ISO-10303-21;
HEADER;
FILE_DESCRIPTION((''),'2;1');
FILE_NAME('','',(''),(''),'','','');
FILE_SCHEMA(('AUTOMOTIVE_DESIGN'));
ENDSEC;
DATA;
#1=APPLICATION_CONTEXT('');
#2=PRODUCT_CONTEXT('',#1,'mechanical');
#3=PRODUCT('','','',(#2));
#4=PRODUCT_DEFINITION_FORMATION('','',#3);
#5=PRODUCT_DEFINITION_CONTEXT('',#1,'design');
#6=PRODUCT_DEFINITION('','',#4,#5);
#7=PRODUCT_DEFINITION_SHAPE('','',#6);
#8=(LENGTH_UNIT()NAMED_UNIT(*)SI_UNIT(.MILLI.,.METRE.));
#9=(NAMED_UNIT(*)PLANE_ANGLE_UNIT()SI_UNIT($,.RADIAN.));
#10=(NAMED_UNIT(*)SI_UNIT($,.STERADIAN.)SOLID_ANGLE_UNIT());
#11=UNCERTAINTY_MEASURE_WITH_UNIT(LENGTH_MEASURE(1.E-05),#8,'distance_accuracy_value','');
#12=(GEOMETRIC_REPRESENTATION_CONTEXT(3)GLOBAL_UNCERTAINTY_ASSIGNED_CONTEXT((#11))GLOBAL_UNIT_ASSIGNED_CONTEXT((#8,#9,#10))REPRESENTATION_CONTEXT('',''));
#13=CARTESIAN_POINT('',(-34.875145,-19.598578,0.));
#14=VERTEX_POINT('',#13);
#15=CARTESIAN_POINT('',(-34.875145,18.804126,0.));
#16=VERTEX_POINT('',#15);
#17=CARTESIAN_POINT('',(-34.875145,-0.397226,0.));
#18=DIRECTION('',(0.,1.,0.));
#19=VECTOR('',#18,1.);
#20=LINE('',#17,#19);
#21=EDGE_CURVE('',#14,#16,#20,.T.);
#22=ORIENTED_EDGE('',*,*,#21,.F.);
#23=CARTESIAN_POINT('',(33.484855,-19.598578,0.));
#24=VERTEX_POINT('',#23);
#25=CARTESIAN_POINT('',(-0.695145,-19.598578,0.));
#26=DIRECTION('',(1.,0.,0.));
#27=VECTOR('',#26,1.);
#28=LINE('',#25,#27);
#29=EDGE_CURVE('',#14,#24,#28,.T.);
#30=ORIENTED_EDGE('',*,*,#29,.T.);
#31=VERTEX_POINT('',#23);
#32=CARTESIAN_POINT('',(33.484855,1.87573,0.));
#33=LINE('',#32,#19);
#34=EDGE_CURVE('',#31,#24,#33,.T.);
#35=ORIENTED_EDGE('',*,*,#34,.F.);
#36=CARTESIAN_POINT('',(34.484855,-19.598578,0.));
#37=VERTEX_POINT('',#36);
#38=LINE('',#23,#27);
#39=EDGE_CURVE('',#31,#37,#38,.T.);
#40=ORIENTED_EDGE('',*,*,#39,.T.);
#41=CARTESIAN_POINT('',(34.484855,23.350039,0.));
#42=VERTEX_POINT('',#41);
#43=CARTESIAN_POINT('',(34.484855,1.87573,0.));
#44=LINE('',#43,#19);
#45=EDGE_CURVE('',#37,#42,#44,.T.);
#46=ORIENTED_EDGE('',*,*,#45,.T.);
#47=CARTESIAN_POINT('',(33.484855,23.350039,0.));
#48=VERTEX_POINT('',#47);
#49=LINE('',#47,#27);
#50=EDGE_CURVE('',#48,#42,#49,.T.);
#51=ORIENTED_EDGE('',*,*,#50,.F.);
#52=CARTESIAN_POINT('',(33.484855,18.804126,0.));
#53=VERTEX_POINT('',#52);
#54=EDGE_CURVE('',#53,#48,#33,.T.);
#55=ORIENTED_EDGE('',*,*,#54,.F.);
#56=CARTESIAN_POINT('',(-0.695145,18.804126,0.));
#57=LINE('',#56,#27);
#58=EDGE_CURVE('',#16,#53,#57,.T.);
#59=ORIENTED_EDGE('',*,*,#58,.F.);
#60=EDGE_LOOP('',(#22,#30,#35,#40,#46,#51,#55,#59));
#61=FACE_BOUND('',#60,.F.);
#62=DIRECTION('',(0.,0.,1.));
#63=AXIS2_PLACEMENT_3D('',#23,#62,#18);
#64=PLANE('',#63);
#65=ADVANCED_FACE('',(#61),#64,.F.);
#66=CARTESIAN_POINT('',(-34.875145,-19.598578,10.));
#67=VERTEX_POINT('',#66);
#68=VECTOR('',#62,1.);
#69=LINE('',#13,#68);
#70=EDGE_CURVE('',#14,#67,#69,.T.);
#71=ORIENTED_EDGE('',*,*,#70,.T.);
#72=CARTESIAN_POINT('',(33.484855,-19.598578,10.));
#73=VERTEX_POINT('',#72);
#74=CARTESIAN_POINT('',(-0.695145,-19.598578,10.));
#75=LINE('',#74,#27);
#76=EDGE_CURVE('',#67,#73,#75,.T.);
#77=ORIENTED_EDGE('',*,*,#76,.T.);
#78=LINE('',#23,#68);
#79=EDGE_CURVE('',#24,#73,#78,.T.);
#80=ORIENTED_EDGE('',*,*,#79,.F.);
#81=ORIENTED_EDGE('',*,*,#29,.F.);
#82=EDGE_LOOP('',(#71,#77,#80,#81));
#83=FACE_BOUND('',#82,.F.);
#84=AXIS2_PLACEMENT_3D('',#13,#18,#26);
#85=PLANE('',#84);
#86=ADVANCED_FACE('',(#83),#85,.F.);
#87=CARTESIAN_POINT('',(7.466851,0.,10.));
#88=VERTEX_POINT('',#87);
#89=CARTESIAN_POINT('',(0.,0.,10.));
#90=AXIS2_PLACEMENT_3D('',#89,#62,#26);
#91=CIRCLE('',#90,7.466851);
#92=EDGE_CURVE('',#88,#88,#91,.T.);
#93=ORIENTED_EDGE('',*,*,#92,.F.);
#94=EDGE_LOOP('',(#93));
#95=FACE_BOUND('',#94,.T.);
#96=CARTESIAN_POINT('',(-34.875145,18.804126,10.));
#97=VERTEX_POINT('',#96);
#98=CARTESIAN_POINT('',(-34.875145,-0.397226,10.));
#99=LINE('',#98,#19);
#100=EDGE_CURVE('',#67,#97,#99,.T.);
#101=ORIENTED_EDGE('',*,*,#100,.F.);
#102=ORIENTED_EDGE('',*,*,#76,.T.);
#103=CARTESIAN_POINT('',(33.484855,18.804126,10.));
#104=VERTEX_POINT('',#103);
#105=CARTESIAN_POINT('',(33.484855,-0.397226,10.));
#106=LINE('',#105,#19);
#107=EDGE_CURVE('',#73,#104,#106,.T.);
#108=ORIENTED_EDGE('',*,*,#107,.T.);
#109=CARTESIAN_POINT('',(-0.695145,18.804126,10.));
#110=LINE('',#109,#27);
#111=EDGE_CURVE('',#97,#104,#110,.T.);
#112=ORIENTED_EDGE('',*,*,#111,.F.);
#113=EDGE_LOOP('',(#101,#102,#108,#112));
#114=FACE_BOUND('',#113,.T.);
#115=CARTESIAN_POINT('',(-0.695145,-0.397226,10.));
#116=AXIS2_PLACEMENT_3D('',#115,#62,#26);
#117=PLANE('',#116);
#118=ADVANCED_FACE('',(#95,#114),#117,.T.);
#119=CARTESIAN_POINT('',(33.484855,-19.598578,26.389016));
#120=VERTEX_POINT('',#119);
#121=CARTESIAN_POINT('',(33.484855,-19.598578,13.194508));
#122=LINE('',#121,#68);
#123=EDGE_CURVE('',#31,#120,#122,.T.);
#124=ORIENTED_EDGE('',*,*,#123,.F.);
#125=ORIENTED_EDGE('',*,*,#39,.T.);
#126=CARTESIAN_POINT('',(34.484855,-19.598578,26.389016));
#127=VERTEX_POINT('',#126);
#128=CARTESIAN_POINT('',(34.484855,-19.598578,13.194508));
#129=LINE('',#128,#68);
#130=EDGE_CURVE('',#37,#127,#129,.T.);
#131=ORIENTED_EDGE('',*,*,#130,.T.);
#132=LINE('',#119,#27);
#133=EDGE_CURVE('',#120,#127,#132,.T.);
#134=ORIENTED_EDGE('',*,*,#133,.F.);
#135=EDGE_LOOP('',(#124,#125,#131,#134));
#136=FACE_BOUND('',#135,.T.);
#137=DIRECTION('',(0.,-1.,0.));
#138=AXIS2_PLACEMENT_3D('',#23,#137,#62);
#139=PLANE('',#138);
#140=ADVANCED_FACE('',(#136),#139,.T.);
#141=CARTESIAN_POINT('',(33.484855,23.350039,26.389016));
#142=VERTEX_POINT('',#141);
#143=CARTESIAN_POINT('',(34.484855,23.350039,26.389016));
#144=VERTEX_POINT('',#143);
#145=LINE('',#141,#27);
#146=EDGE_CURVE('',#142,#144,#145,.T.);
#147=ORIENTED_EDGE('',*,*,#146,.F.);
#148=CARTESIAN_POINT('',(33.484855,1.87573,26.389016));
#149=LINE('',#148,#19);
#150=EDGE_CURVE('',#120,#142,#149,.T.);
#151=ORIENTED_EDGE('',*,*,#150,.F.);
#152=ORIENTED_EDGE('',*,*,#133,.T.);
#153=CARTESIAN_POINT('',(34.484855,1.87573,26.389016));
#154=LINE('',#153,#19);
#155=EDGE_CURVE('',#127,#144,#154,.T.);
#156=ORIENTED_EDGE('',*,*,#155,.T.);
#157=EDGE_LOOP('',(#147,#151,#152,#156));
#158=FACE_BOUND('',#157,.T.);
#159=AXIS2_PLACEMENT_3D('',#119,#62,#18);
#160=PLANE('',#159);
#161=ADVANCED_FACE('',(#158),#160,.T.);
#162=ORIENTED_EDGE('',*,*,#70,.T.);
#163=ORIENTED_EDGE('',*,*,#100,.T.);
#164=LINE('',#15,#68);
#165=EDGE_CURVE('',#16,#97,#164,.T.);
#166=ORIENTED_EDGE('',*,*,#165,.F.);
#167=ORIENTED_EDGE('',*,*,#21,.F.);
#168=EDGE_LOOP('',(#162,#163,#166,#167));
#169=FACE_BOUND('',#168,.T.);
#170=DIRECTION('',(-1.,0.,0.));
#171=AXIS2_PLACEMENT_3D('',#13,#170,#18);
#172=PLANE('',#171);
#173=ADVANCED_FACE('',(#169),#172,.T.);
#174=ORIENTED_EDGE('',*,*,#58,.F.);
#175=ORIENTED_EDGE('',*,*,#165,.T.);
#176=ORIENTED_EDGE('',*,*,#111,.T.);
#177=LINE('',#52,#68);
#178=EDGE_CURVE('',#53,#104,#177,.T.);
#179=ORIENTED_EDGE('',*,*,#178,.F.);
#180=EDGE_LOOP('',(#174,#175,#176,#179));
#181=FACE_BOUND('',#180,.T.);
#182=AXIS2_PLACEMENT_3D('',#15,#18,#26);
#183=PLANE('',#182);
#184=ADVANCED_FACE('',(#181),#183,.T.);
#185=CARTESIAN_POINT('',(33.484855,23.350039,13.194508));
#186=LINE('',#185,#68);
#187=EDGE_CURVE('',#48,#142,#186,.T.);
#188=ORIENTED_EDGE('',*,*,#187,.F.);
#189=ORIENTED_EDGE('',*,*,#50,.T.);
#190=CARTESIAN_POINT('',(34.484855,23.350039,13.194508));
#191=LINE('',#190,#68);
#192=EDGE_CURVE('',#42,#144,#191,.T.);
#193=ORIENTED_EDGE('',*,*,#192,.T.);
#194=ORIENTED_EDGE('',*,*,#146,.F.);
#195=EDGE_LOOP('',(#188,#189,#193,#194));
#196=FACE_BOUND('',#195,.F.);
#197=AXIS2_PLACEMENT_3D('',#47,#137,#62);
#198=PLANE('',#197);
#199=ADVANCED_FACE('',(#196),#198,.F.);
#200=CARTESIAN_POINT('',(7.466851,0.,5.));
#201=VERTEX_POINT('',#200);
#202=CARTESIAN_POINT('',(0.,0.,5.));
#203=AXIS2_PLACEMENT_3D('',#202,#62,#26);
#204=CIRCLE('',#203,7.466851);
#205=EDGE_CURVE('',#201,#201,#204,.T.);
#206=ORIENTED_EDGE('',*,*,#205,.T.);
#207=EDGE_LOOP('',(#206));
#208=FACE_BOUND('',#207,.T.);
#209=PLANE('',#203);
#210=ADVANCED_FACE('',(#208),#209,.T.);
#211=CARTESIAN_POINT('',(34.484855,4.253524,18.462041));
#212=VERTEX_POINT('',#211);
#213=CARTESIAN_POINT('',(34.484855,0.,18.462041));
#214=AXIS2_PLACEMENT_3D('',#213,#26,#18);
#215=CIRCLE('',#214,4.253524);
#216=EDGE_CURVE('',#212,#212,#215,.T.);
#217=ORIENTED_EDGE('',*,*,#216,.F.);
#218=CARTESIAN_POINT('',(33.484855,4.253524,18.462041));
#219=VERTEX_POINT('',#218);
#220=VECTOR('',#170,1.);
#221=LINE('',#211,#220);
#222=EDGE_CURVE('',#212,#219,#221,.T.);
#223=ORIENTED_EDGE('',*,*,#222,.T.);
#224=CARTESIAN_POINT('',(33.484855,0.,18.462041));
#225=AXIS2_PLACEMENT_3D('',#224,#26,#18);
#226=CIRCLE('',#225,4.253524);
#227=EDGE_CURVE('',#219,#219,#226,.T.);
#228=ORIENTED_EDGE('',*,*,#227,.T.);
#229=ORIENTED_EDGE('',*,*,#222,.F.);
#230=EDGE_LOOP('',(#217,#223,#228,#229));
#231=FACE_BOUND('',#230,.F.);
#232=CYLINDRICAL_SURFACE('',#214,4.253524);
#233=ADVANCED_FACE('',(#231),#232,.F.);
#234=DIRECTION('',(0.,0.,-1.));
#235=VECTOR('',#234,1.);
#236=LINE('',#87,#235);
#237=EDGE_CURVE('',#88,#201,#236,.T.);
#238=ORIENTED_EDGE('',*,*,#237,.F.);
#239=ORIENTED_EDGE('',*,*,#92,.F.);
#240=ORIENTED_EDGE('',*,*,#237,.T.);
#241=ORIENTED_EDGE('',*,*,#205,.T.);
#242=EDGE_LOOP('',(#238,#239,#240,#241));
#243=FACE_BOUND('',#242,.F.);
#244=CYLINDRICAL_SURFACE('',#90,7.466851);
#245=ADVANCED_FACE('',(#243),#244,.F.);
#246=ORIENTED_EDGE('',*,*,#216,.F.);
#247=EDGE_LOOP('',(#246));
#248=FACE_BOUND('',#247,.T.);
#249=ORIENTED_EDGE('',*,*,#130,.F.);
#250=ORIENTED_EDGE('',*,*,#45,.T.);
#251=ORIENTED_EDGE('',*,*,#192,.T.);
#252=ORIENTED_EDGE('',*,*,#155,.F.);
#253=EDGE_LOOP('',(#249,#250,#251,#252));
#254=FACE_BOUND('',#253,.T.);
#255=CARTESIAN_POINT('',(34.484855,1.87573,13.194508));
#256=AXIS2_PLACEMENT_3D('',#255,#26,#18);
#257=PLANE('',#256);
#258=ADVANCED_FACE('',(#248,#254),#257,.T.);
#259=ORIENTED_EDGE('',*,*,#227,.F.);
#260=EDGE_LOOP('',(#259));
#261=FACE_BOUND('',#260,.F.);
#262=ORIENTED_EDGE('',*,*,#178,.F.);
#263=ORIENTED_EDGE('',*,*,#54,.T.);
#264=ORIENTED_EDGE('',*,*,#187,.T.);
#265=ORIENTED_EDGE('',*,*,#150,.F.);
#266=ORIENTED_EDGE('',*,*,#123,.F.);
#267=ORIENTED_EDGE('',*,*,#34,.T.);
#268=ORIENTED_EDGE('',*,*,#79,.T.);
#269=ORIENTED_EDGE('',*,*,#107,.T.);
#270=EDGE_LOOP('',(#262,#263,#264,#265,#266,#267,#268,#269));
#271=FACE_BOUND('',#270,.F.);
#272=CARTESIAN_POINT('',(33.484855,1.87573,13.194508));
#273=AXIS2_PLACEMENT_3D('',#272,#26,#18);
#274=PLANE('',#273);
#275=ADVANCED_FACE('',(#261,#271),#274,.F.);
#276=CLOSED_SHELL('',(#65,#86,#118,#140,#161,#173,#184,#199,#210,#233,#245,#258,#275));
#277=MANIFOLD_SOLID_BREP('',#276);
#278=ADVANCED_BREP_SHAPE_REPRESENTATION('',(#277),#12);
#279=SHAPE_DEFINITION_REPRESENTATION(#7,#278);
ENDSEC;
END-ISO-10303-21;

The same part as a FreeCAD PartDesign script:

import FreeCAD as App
import Part
import Sketcher
from FreeCAD import Vector
Q = App.Units.Quantity

doc = App.newDocument("Part")
body = doc.addObject("PartDesign::Body", "Body")

# Sketch on XY plane
sketch1 = body.newObject("Sketcher::SketchObject", "Sketch")
sketch1.AttachmentSupport = (doc.getObject("XY_Plane"), [""])
sketch1.MapMode = "FlatFace"
sketch1.addGeometry([
    Part.LineSegment(Vector(-34.875145, 18.804126, 0), Vector(-34.875145, -19.598578, 0)),
    Part.LineSegment(Vector(-34.875145, -19.598578, 0), Vector(33.484855, -19.598578, 0)),
    Part.LineSegment(Vector(33.484855, -19.598578, 0), Vector(33.484855, 18.804126, 0)),
    Part.LineSegment(Vector(33.484855, 18.804126, 0), Vector(-34.875145, 18.804126, 0)),
], False)
sketch1.addConstraint([
    Sketcher.Constraint("Coincident", 0, 2, 1, 1),
    Sketcher.Constraint("Coincident", 1, 2, 2, 1),
    Sketcher.Constraint("Coincident", 2, 2, 3, 1),
    Sketcher.Constraint("Coincident", 3, 2, 0, 1),
    Sketcher.Constraint("Vertical", 0),
    Sketcher.Constraint("Horizontal", 1),
    Sketcher.Constraint("Vertical", 2),
    Sketcher.Constraint("Horizontal", 3),
    Sketcher.Constraint("DistanceX", 1, 1, 1, 2, Q("68.36 mm")),
    Sketcher.Constraint("DistanceY", 0, 2, 0, 1, Q("38.402704 mm")),
    Sketcher.Constraint("DistanceY", 0, 2, -1, 1, Q("19.598578 mm")),
    Sketcher.Constraint("DistanceX", 0, 2, -1, 1, Q("34.875145 mm")),
])
pad1 = body.newObject("PartDesign::Pad", "Pad")
pad1.Profile = sketch1
pad1.Length = 10

# Sketch on XY plane
sketch2 = body.newObject("Sketcher::SketchObject", "Sketch001")
sketch2.AttachmentSupport = (doc.getObject("XY_Plane"), [""])
sketch2.MapMode = "FlatFace"
sketch2.AttachmentOffset = App.Placement(Vector(0, 0, 10), App.Rotation())
sketch2.addGeometry(Part.Circle(Vector(0, 0, 0), Vector(0, 0, 1), 7.466851), False)
sketch2.addConstraint([
    Sketcher.Constraint("Coincident", 0, 3, -1, 1),
    Sketcher.Constraint("Diameter", 0, Q("14.933702 mm")),
])
pocket1 = body.newObject("PartDesign::Pocket", "Pocket")
pocket1.Profile = sketch2
pocket1.Length = 5

# Sketch on YZ plane
sketch3 = body.newObject("Sketcher::SketchObject", "Sketch002")
sketch3.AttachmentSupport = (doc.getObject("YZ_Plane"), [""])
sketch3.MapMode = "FlatFace"
sketch3.AttachmentOffset = App.Placement(Vector(0, 0, 33.484855), App.Rotation())
sketch3.addGeometry([
    Part.LineSegment(Vector(-19.598578, 26.389016, 0), Vector(-19.598578, 0, 0)),
    Part.LineSegment(Vector(-19.598578, 0, 0), Vector(23.350039, 0, 0)),
    Part.LineSegment(Vector(23.350039, 0, 0), Vector(23.350039, 26.389016, 0)),
    Part.LineSegment(Vector(23.350039, 26.389016, 0), Vector(-19.598578, 26.389016, 0)),
], False)
sketch3.addConstraint([
    Sketcher.Constraint("Coincident", 0, 2, 1, 1),
    Sketcher.Constraint("Coincident", 1, 2, 2, 1),
    Sketcher.Constraint("Coincident", 2, 2, 3, 1),
    Sketcher.Constraint("Coincident", 3, 2, 0, 1),
    Sketcher.Constraint("Vertical", 0),
    Sketcher.Constraint("Horizontal", 1),
    Sketcher.Constraint("Vertical", 2),
    Sketcher.Constraint("Horizontal", 3),
    Sketcher.Constraint("PointOnObject", 0, 2, -1),
    Sketcher.Constraint("DistanceX", 1, 1, 1, 2, Q("42.948617 mm")),
    Sketcher.Constraint("DistanceY", 0, 2, 0, 1, Q("26.389016 mm")),
    Sketcher.Constraint("DistanceX", 0, 2, -1, 1, Q("19.598578 mm")),
])
pad2 = body.newObject("PartDesign::Pad", "Pad001")
pad2.Profile = sketch3
pad2.Length = 1

# Sketch on YZ plane
sketch4 = body.newObject("Sketcher::SketchObject", "Sketch003")
sketch4.AttachmentSupport = (doc.getObject("YZ_Plane"), [""])
sketch4.MapMode = "FlatFace"
sketch4.AttachmentOffset = App.Placement(Vector(0, 0, 34.484855), App.Rotation())
sketch4.addGeometry(Part.Circle(Vector(0, 18.462041, 0), Vector(0, 0, 1), 4.253524), False)
sketch4.addConstraint([
    Sketcher.Constraint("PointOnObject", 0, 3, -2),
    Sketcher.Constraint("Diameter", 0, Q("8.507048 mm")),
    Sketcher.Constraint("DistanceY", -1, 1, 0, 3, Q("18.462041 mm")),
])
pocket2 = body.newObject("PartDesign::Pocket", "Pocket001")
pocket2.Profile = sketch4
pocket2.Length = 1

doc.recompute()
